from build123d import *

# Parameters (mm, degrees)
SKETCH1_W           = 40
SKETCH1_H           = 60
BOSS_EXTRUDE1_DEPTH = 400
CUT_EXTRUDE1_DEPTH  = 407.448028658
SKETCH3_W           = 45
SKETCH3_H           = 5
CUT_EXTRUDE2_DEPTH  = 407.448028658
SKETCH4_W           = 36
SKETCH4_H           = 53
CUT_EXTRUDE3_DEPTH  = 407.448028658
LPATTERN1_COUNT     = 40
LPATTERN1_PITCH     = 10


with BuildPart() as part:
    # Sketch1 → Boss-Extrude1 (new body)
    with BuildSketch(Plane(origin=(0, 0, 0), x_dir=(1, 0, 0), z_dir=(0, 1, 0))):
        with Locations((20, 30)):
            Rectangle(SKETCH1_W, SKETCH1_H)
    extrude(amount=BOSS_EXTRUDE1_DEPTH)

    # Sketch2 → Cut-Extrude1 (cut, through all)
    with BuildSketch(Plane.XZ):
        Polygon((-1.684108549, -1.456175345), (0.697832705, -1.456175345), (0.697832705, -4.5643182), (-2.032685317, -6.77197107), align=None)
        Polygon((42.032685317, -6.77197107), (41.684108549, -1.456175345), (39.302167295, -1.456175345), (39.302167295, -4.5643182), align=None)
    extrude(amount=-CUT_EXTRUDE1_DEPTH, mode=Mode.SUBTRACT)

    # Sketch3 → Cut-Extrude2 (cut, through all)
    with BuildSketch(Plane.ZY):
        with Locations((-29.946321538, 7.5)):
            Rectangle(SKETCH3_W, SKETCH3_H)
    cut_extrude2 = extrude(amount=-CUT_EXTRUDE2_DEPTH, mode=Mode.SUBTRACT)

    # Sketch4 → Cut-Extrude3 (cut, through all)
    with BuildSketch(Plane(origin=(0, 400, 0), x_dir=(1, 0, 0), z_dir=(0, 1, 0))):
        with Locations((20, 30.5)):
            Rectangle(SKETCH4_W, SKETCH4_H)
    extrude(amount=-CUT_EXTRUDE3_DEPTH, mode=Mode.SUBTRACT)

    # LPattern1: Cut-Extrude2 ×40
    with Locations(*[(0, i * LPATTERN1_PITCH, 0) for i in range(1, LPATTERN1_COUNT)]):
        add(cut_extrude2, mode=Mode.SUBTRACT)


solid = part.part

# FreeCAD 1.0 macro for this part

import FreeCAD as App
import Part
import Sketcher

doc = App.newDocument("Part")
body = doc.addObject("PartDesign::Body", "Body")

# Sketch on XZ plane
sketch1 = body.newObject("Sketcher::SketchObject", "Sketch")
sketch1.AttachmentSupport = (doc.getObject("XZ_Plane"), [""])
sketch1.MapMode = "FlatFace"
sketch1.addGeometry(Part.LineSegment(App.Vector(0, -60, 0), App.Vector(0, 0, 0)), False)
sketch1.addGeometry(Part.LineSegment(App.Vector(0, 0, 0), App.Vector(40, 0, 0)), False)
sketch1.addGeometry(Part.LineSegment(App.Vector(40, 0, 0), App.Vector(40, -60, 0)), False)
sketch1.addGeometry(Part.LineSegment(App.Vector(40, -60, 0), App.Vector(0, -60, 0)), False)
sketch1.addConstraint(Sketcher.Constraint("Coincident", 0, 2, 1, 1))
sketch1.addConstraint(Sketcher.Constraint("Coincident", 1, 2, 2, 1))
sketch1.addConstraint(Sketcher.Constraint("Coincident", 2, 2, 3, 1))
sketch1.addConstraint(Sketcher.Constraint("Coincident", 3, 2, 0, 1))
sketch1.addConstraint(Sketcher.Constraint("Vertical", 0))
sketch1.addConstraint(Sketcher.Constraint("Horizontal", 1))
sketch1.addConstraint(Sketcher.Constraint("Vertical", 2))
sketch1.addConstraint(Sketcher.Constraint("Horizontal", 3))
sketch1.addConstraint(Sketcher.Constraint("Coincident", 0, 2, -1, 1))
sketch1.addConstraint(Sketcher.Constraint("DistanceX", 1, 1, 1, 2, 40.0))
sketch1.addConstraint(Sketcher.Constraint("DistanceY", 0, 1, 0, 2, 60.0))
pad1 = body.newObject("PartDesign::Pad", "Pad")
pad1.Profile = sketch1
pad1.Length = 400
pad1.Reversed = True

# Sketch on XZ plane
sketch2 = body.newObject("Sketcher::SketchObject", "Sketch001")
sketch2.AttachmentSupport = (doc.getObject("XZ_Plane"), [""])
sketch2.MapMode = "FlatFace"
sketch2.addGeometry(Part.LineSegment(App.Vector(0.697833, -1.456175, 0), App.Vector(-1.684109, -1.456175, 0)), False)
sketch2.addGeometry(Part.LineSegment(App.Vector(-1.684109, -1.456175, 0), App.Vector(-2.032685, -6.771971, 0)), False)
sketch2.addGeometry(Part.LineSegment(App.Vector(-2.032685, -6.771971, 0), App.Vector(0.697833, -4.564318, 0)), False)
sketch2.addGeometry(Part.LineSegment(App.Vector(0.697833, -4.564318, 0), App.Vector(0.697833, -1.456175, 0)), False)
sketch2.addGeometry(Part.LineSegment(App.Vector(42.032685, -6.771971, 0), App.Vector(41.684109, -1.456175, 0)), False)
sketch2.addGeometry(Part.LineSegment(App.Vector(41.684109, -1.456175, 0), App.Vector(39.302167, -1.456175, 0)), False)
sketch2.addGeometry(Part.LineSegment(App.Vector(39.302167, -1.456175, 0), App.Vector(39.302167, -4.564318, 0)), False)
sketch2.addGeometry(Part.LineSegment(App.Vector(39.302167, -4.564318, 0), App.Vector(42.032685, -6.771971, 0)), False)
sketch2.addConstraint(Sketcher.Constraint("Coincident", 0, 2, 1, 1))
sketch2.addConstraint(Sketcher.Constraint("Coincident", 1, 2, 2, 1))
sketch2.addConstraint(Sketcher.Constraint("Coincident", 2, 2, 3, 1))
sketch2.addConstraint(Sketcher.Constraint("Coincident", 3, 2, 0, 1))
sketch2.addConstraint(Sketcher.Constraint("Coincident", 4, 2, 5, 1))
sketch2.addConstraint(Sketcher.Constraint("Coincident", 5, 2, 6, 1))
sketch2.addConstraint(Sketcher.Constraint("Coincident", 6, 2, 7, 1))
sketch2.addConstraint(Sketcher.Constraint("Coincident", 7, 2, 4, 1))
sketch2.addConstraint(Sketcher.Constraint("Horizontal", 0))
sketch2.addConstraint(Sketcher.Constraint("Vertical", 3))
sketch2.addConstraint(Sketcher.Constraint("Horizontal", 5))
sketch2.addConstraint(Sketcher.Constraint("Vertical", 6))
sketch2.addConstraint(Sketcher.Constraint("Horizontal", 3, 2, 4, 2))
sketch2.addConstraint(Sketcher.Constraint("Horizontal", 2, 2, 6, 2))
sketch2.addConstraint(Sketcher.Constraint("Horizontal", 1, 2, 7, 2))
sketch2.addConstraint(Sketcher.Constraint("Equal", 0, 5))
sketch2.addConstraint(Sketcher.Constraint("Equal", 1, 4))
sketch2.addConstraint(Sketcher.Constraint("DistanceX", 0, 2, 0, 1, 2.381941))
sketch2.addConstraint(Sketcher.Constraint("DistanceY", 3, 1, 3, 2, 3.108143))
sketch2.addConstraint(Sketcher.Constraint("DistanceX", 0, 2, -1, 1, 1.684109))
sketch2.addConstraint(Sketcher.Constraint("DistanceY", 1, 2, -1, 1, 6.771971))
sketch2.addConstraint(Sketcher.Constraint("DistanceY", 2, 2, -1, 1, 4.564318))
sketch2.addConstraint(Sketcher.Constraint("DistanceX", -1, 1, 4, 2, 41.684109))
sketch2.addConstraint(Sketcher.Constraint("DistanceX", 1, 2, 2, 2, 2.730518))
pocket1 = body.newObject("PartDesign::Pocket", "Pocket")
pocket1.Profile = sketch2
pocket1.Type = "ThroughAll"

# Sketch on YZ plane
sketch3 = body.newObject("Sketcher::SketchObject", "Sketch002")
sketch3.AttachmentSupport = (doc.getObject("YZ_Plane"), [""])
sketch3.MapMode = "FlatFace"
sketch3.addGeometry(Part.LineSegment(App.Vector(10, -52.446322, 0), App.Vector(5, -52.446322, 0)), False)
sketch3.addGeometry(Part.LineSegment(App.Vector(5, -52.446322, 0), App.Vector(5, -7.446322, 0)), False)
sketch3.addGeometry(Part.LineSegment(App.Vector(5, -7.446322, 0), App.Vector(10, -7.446322, 0)), False)
sketch3.addGeometry(Part.LineSegment(App.Vector(10, -7.446322, 0), App.Vector(10, -52.446322, 0)), False)
sketch3.addConstraint(Sketcher.Constraint("Coincident", 0, 2, 1, 1))
sketch3.addConstraint(Sketcher.Constraint("Coincident", 1, 2, 2, 1))
sketch3.addConstraint(Sketcher.Constraint("Coincident", 2, 2, 3, 1))
sketch3.addConstraint(Sketcher.Constraint("Coincident", 3, 2, 0, 1))
sketch3.addConstraint(Sketcher.Constraint("Horizontal", 0))
sketch3.addConstraint(Sketcher.Constraint("Vertical", 1))
sketch3.addConstraint(Sketcher.Constraint("Horizontal", 2))
sketch3.addConstraint(Sketcher.Constraint("Vertical", 3))
sketch3.addConstraint(Sketcher.Constraint("DistanceX", 0, 2, 0, 1, 5.0))
sketch3.addConstraint(Sketcher.Constraint("DistanceY", 1, 1, 1, 2, 45.0))
sketch3.addConstraint(Sketcher.Constraint("DistanceX", -1, 1, 0, 2, 5.0))
sketch3.addConstraint(Sketcher.Constraint("DistanceY", 0, 2, -1, 1, 52.446322))
pocket2 = body.newObject("PartDesign::Pocket", "Pocket001")
pocket2.Profile = sketch3
pocket2.Type = "ThroughAll"
pocket2.Reversed = True

# Sketch on XZ plane
sketch4 = body.newObject("Sketcher::SketchObject", "Sketch003")
sketch4.AttachmentSupport = (doc.getObject("XZ_Plane"), [""])
sketch4.MapMode = "FlatFace"
sketch4.AttachmentOffset = App.Placement(App.Vector(0, 0, -400), App.Rotation())
sketch4.addGeometry(Part.LineSegment(App.Vector(2, -57, 0), App.Vector(2, -4, 0)), False)
sketch4.addGeometry(Part.LineSegment(App.Vector(2, -4, 0), App.Vector(38, -4, 0)), False)
sketch4.addGeometry(Part.LineSegment(App.Vector(38, -4, 0), App.Vector(38, -57, 0)), False)
sketch4.addGeometry(Part.LineSegment(App.Vector(38, -57, 0), App.Vector(2, -57, 0)), False)
sketch4.addConstraint(Sketcher.Constraint("Coincident", 0, 2, 1, 1))
sketch4.addConstraint(Sketcher.Constraint("Coincident", 1, 2, 2, 1))
sketch4.addConstraint(Sketcher.Constraint("Coincident", 2, 2, 3, 1))
sketch4.addConstraint(Sketcher.Constraint("Coincident", 3, 2, 0, 1))
sketch4.addConstraint(Sketcher.Constraint("Vertical", 0))
sketch4.addConstraint(Sketcher.Constraint("Horizontal", 1))
sketch4.addConstraint(Sketcher.Constraint("Vertical", 2))
sketch4.addConstraint(Sketcher.Constraint("Horizontal", 3))
sketch4.addConstraint(Sketcher.Constraint("DistanceX", 1, 1, 1, 2, 36.0))
sketch4.addConstraint(Sketcher.Constraint("DistanceY", 0, 1, 0, 2, 53.0))
sketch4.addConstraint(Sketcher.Constraint("DistanceX", -1, 1, 0, 2, 2.0))
sketch4.addConstraint(Sketcher.Constraint("DistanceY", 0, 2, -1, 1, 4.0))
pocket3 = body.newObject("PartDesign::Pocket", "Pocket002")
pocket3.Profile = sketch4
pocket3.Type = "ThroughAll"
pocket3.Reversed = True
doc.recompute()

linearpattern = body.newObject("PartDesign::LinearPattern", "LinearPattern")
linearpattern.Originals = [pocket2]
linearpattern.Direction = (doc.getObject("Y_Axis"), [""])
linearpattern.Mode = "offset"
linearpattern.Offset = 10
linearpattern.Occurrences = 40
body.Tip = linearpattern

doc.recompute()
